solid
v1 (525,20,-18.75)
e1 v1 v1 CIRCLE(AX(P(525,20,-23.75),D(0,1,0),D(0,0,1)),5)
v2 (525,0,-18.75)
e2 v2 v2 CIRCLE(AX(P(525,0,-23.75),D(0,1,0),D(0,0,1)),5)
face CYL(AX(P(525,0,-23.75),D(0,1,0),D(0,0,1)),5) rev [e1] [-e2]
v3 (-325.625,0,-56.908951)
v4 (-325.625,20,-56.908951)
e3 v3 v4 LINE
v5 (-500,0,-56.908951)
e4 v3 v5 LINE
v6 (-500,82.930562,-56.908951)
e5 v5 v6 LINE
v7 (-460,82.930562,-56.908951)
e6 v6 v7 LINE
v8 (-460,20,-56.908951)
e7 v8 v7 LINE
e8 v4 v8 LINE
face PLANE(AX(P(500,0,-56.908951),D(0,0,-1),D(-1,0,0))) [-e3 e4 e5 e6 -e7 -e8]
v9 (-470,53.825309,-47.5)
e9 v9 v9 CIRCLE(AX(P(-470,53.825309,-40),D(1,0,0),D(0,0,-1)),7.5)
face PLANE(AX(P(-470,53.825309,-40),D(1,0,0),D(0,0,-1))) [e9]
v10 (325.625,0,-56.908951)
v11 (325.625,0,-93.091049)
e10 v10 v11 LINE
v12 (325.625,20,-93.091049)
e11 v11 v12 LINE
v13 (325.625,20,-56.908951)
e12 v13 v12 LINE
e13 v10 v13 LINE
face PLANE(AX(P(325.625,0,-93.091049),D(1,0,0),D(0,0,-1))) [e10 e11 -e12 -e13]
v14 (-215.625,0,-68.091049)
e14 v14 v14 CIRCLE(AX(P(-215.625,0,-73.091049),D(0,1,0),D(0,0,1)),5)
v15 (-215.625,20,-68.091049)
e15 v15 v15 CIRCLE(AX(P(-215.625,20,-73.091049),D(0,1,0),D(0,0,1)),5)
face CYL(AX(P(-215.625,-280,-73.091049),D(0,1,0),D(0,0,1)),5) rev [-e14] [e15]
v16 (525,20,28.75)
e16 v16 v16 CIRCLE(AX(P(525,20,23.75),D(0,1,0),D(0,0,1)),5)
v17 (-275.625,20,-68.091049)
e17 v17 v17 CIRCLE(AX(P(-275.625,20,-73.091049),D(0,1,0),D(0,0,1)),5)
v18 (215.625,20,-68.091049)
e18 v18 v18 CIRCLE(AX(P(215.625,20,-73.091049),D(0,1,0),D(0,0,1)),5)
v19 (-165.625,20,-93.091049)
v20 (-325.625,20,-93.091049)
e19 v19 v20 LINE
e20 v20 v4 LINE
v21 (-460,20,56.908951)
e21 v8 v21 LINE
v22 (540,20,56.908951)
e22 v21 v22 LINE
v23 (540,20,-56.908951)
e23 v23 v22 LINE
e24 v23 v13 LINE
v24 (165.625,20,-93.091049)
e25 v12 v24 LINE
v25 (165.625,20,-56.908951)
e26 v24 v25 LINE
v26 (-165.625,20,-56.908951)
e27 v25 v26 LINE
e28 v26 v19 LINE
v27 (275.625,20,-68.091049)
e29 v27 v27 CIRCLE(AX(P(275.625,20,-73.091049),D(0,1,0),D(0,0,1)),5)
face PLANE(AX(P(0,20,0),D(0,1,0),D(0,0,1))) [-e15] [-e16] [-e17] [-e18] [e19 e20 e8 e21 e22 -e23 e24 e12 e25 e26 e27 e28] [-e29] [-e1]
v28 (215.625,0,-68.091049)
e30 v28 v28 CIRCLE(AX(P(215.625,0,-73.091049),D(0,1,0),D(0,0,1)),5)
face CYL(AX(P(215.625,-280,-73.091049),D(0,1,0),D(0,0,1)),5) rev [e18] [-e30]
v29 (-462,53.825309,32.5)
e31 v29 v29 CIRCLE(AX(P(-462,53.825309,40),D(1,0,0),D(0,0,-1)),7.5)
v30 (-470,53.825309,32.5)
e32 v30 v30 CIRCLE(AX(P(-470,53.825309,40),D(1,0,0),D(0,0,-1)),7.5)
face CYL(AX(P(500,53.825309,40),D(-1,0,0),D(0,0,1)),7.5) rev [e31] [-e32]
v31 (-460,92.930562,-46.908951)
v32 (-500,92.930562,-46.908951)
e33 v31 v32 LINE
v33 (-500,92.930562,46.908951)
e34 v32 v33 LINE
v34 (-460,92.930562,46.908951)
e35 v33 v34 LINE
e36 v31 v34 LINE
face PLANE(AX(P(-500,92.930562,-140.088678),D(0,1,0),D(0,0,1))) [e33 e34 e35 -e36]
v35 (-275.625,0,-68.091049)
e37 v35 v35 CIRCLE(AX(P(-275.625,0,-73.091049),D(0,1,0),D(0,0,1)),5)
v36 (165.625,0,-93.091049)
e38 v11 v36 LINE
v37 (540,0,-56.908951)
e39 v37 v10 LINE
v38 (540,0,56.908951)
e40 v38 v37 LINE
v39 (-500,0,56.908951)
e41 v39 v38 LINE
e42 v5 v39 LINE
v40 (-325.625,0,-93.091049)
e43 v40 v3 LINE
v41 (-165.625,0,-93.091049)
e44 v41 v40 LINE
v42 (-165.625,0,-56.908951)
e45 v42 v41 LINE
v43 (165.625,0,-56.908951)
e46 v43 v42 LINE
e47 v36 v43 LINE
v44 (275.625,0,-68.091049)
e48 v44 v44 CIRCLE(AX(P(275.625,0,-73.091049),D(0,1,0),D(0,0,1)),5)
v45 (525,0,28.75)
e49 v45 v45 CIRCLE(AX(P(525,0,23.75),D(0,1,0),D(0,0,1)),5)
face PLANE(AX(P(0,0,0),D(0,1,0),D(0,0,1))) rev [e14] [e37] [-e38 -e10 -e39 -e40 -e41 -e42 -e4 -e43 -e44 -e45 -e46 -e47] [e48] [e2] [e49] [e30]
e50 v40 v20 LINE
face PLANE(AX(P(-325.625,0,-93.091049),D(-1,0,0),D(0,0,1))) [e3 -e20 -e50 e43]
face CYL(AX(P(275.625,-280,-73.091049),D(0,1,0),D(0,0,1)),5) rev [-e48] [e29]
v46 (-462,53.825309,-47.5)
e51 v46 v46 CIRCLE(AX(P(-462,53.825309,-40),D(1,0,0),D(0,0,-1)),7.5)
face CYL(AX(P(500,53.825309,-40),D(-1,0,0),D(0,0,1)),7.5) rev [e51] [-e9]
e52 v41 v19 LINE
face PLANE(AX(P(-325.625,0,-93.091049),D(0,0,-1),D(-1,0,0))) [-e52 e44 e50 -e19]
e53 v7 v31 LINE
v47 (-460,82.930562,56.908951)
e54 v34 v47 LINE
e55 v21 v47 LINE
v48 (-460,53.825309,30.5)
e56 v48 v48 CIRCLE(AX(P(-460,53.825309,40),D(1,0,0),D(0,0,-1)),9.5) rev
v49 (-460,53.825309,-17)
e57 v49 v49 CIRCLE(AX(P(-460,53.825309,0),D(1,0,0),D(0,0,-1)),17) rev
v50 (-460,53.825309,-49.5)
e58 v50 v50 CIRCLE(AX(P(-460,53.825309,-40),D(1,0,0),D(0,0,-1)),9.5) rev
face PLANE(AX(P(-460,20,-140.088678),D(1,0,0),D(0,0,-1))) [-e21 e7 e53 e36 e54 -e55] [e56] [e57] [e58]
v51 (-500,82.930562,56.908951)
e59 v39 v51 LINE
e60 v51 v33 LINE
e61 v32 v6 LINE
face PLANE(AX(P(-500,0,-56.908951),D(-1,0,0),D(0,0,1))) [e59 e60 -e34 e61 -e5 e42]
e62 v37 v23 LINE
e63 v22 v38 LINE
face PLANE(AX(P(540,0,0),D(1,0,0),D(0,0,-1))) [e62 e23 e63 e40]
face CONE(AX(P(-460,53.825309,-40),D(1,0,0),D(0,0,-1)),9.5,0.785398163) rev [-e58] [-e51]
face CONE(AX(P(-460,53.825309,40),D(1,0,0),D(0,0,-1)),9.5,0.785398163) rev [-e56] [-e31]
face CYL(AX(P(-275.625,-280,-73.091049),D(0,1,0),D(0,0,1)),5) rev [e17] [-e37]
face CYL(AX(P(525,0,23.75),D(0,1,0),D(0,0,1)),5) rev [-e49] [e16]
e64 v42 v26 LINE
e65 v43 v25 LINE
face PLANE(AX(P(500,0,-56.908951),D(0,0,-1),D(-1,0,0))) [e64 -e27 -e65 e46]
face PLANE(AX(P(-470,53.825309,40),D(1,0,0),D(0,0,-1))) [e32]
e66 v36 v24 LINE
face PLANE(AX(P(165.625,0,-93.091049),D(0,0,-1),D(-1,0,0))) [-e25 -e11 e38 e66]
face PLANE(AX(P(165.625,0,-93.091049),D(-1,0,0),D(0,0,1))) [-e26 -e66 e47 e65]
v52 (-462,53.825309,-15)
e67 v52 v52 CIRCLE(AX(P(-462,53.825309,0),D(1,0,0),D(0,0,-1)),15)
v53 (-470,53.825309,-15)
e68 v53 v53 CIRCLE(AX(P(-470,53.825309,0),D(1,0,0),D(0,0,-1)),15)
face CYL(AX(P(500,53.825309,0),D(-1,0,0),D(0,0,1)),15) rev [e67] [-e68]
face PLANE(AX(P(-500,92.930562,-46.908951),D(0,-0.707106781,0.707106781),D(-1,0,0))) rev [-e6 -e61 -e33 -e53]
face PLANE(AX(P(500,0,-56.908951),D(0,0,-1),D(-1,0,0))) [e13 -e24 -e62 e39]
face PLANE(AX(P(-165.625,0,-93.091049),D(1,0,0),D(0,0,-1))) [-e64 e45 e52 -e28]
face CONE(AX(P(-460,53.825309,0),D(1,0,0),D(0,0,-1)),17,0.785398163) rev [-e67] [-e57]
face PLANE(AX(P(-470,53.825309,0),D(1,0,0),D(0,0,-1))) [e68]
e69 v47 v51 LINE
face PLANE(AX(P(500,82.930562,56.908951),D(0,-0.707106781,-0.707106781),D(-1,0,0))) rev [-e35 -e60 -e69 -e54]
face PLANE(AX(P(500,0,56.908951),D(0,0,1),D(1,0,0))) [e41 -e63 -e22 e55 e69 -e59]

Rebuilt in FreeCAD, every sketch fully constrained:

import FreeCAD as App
import Part
import Sketcher
from FreeCAD import Vector
Q = App.Units.Quantity


def edges_at(feature, points):
    """Names of the edges that pass closest to the given points."""
    edges = feature.Shape.Edges
    near = lambda p: min(range(len(edges)), key=lambda i: edges[i].distToShape(Part.Vertex(*p))[0])
    return sorted({f"Edge{near(p) + 1}" for p in points})

doc = App.newDocument("Part")
body = doc.addObject("PartDesign::Body", "Body")

sketch1 = body.newObject("Sketcher::SketchObject", "Sketch")
sketch1.AttachmentSupport = (doc.getObject("XZ_Plane"), [""])
sketch1.MapMode = "FlatFace"
sketch1.addGeometry(Part.LineSegment(Vector(-106, -28, 0), Vector(-106, 28, 0)), False)
sketch1.addGeometry(Part.LineSegment(Vector(-106, 28, 0), Vector(106, 28, 0)), False)
sketch1.addGeometry(Part.LineSegment(Vector(106, 28, 0), Vector(106, -28, 0)), False)
sketch1.addGeometry(Part.LineSegment(Vector(106, -28, 0), Vector(-106, -28, 0)), False)
sketch1.addConstraint(Sketcher.Constraint("Coincident", 0, 2, 1, 1))
sketch1.addConstraint(Sketcher.Constraint("Coincident", 1, 2, 2, 1))
sketch1.addConstraint(Sketcher.Constraint("Coincident", 2, 2, 3, 1))
sketch1.addConstraint(Sketcher.Constraint("Coincident", 3, 2, 0, 1))
sketch1.addConstraint(Sketcher.Constraint("Vertical", 0))
sketch1.addConstraint(Sketcher.Constraint("Horizontal", 1))
sketch1.addConstraint(Sketcher.Constraint("Vertical", 2))
sketch1.addConstraint(Sketcher.Constraint("Horizontal", 3))
sketch1.addConstraint(Sketcher.Constraint("Symmetric", 0, 2, 2, 2, -1, 1))
sketch1.addConstraint(Sketcher.Constraint("DistanceX", 1, 1, 1, 2, Q("211.21615 mm")))
sketch1.addConstraint(Sketcher.Constraint("DistanceY", 0, 1, 0, 2, Q("56.943071 mm")))
pad1 = body.newObject("PartDesign::Pad", "Pad")
pad1.Profile = sketch1
pad1.Length = 20
pad1.Reversed = True

sketch2 = body.newObject("Sketcher::SketchObject", "Sketch001")
sketch2.AttachmentSupport = (doc.getObject("XZ_Plane"), [""])
sketch2.MapMode = "FlatFace"
sketch2.AttachmentOffset = App.Placement(Vector(0, 0, -20), App.Rotation())
sketch2.addGeometry(Part.LineSegment(Vector(-500, -57, 0), Vector(-500, 57, 0)), False)
sketch2.addGeometry(Part.LineSegment(Vector(-500, 57, 0), Vector(500, 57, 0)), False)
sketch2.addGeometry(Part.LineSegment(Vector(500, 57, 0), Vector(500, -57, 0)), False)
sketch2.addGeometry(Part.LineSegment(Vector(500, -57, 0), Vector(-500, -57, 0)), False)
sketch2.addConstraint(Sketcher.Constraint("Coincident", 0, 2, 1, 1))
sketch2.addConstraint(Sketcher.Constraint("Coincident", 1, 2, 2, 1))
sketch2.addConstraint(Sketcher.Constraint("Coincident", 2, 2, 3, 1))
sketch2.addConstraint(Sketcher.Constraint("Coincident", 3, 2, 0, 1))
sketch2.addConstraint(Sketcher.Constraint("Vertical", 0))
sketch2.addConstraint(Sketcher.Constraint("Horizontal", 1))
sketch2.addConstraint(Sketcher.Constraint("Vertical", 2))
sketch2.addConstraint(Sketcher.Constraint("Horizontal", 3))
sketch2.addConstraint(Sketcher.Constraint("Symmetric", 0, 2, 2, 2, -1, 1))
sketch2.addConstraint(Sketcher.Constraint("DistanceX", 1, 1, 1, 2, Q("1000 mm")))
sketch2.addConstraint(Sketcher.Constraint("DistanceY", 0, 1, 0, 2, Q("113.817903 mm")))
pad2 = body.newObject("PartDesign::Pad", "Pad001")
pad2.Profile = sketch2
pad2.Length = 20

sketch3 = body.newObject("Sketcher::SketchObject", "Sketch002")
sketch3.AttachmentSupport = (doc.getObject("XZ_Plane"), [""])
sketch3.MapMode = "FlatFace"
sketch3.AttachmentOffset = App.Placement(Vector(0, 0, -20), App.Rotation())
sketch3.addGeometry(Part.LineSegment(Vector(-326, -93, 0), Vector(-326, -57, 0)), False)
sketch3.addGeometry(Part.LineSegment(Vector(-326, -57, 0), Vector(-166, -57, 0)), False)
sketch3.addGeometry(Part.LineSegment(Vector(-166, -57, 0), Vector(-166, -93, 0)), False)
sketch3.addGeometry(Part.LineSegment(Vector(-166, -93, 0), Vector(-326, -93, 0)), False)
sketch3.addConstraint(Sketcher.Constraint("Coincident", 0, 2, 1, 1))
sketch3.addConstraint(Sketcher.Constraint("Coincident", 1, 2, 2, 1))
sketch3.addConstraint(Sketcher.Constraint("Coincident", 2, 2, 3, 1))
sketch3.addConstraint(Sketcher.Constraint("Coincident", 3, 2, 0, 1))
sketch3.addConstraint(Sketcher.Constraint("Vertical", 0))
sketch3.addConstraint(Sketcher.Constraint("Horizontal", 1))
sketch3.addConstraint(Sketcher.Constraint("Vertical", 2))
sketch3.addConstraint(Sketcher.Constraint("Horizontal", 3))
sketch3.addConstraint(Sketcher.Constraint("DistanceX", 1, 1, 1, 2, Q("160 mm")))
sketch3.addConstraint(Sketcher.Constraint("DistanceX", 0, 2, -1, 1, Q("325.625 mm")))
sketch3.addConstraint(Sketcher.Constraint("DistanceY", 0, 1, 0, 2, Q("36.182097 mm")))
sketch3.addConstraint(Sketcher.Constraint("DistanceY", 0, 2, -1, 1, Q("56.908951 mm")))
pad3 = body.newObject("PartDesign::Pad", "Pad002")
pad3.Profile = sketch3
pad3.Length = 20

sketch4 = body.newObject("Sketcher::SketchObject", "Sketch003")
sketch4.AttachmentSupport = (doc.getObject("XZ_Plane"), [""])
sketch4.MapMode = "FlatFace"
sketch4.AttachmentOffset = App.Placement(Vector(0, 0, -20), App.Rotation())
sketch4.addGeometry(Part.LineSegment(Vector(166, -93, 0), Vector(166, -57, 0)), False)
sketch4.addGeometry(Part.LineSegment(Vector(166, -57, 0), Vector(326, -57, 0)), False)
sketch4.addGeometry(Part.LineSegment(Vector(326, -57, 0), Vector(326, -93, 0)), False)
sketch4.addGeometry(Part.LineSegment(Vector(326, -93, 0), Vector(166, -93, 0)), False)
sketch4.addConstraint(Sketcher.Constraint("Coincident", 0, 2, 1, 1))
sketch4.addConstraint(Sketcher.Constraint("Coincident", 1, 2, 2, 1))
sketch4.addConstraint(Sketcher.Constraint("Coincident", 2, 2, 3, 1))
sketch4.addConstraint(Sketcher.Constraint("Coincident", 3, 2, 0, 1))
sketch4.addConstraint(Sketcher.Constraint("Vertical", 0))
sketch4.addConstraint(Sketcher.Constraint("Horizontal", 1))
sketch4.addConstraint(Sketcher.Constraint("Vertical", 2))
sketch4.addConstraint(Sketcher.Constraint("Horizontal", 3))
sketch4.addConstraint(Sketcher.Constraint("DistanceX", 1, 1, 1, 2, Q("160 mm")))
sketch4.addConstraint(Sketcher.Constraint("DistanceX", -1, 1, 0, 2, Q("165.625 mm")))
sketch4.addConstraint(Sketcher.Constraint("DistanceY", 0, 1, 0, 2, Q("36.182097 mm")))
sketch4.addConstraint(Sketcher.Constraint("DistanceY", 0, 2, -1, 1, Q("56.908951 mm")))
pad4 = body.newObject("PartDesign::Pad", "Pad003")
pad4.Profile = sketch4
pad4.Length = 20

sketch5 = body.newObject("Sketcher::SketchObject", "Sketch004")
sketch5.AttachmentSupport = (doc.getObject("XY_Plane"), [""])
sketch5.MapMode = "FlatFace"
sketch5.AttachmentOffset = App.Placement(Vector(0, 0, 56.908951), App.Rotation())
sketch5.addGeometry(Part.LineSegment(Vector(-500, 93, 0), Vector(-500, 20, 0)), False)
sketch5.addGeometry(Part.LineSegment(Vector(-500, 20, 0), Vector(-460, 20, 0)), False)
sketch5.addGeometry(Part.LineSegment(Vector(-460, 20, 0), Vector(-460, 93, 0)), False)
sketch5.addGeometry(Part.LineSegment(Vector(-460, 93, 0), Vector(-500, 93, 0)), False)
sketch5.addConstraint(Sketcher.Constraint("Coincident", 0, 2, 1, 1))
sketch5.addConstraint(Sketcher.Constraint("Coincident", 1, 2, 2, 1))
sketch5.addConstraint(Sketcher.Constraint("Coincident", 2, 2, 3, 1))
sketch5.addConstraint(Sketcher.Constraint("Coincident", 3, 2, 0, 1))
sketch5.addConstraint(Sketcher.Constraint("Vertical", 0))
sketch5.addConstraint(Sketcher.Constraint("Horizontal", 1))
sketch5.addConstraint(Sketcher.Constraint("Vertical", 2))
sketch5.addConstraint(Sketcher.Constraint("Horizontal", 3))
sketch5.addConstraint(Sketcher.Constraint("DistanceX", 1, 1, 1, 2, Q("40 mm")))
sketch5.addConstraint(Sketcher.Constraint("DistanceX", 0, 2, -1, 1, Q("500 mm")))
sketch5.addConstraint(Sketcher.Constraint("DistanceY", -1, 1, 0, 2, Q("20 mm")))
sketch5.addConstraint(Sketcher.Constraint("DistanceY", 0, 2, 0, 1, Q("72.930562 mm")))
pad5 = body.newObject("PartDesign::Pad", "Pad004")
pad5.Profile = sketch5
pad5.Length = 113.817903
pad5.Reversed = True

sketch6 = body.newObject("Sketcher::SketchObject", "Sketch005")
sketch6.AttachmentSupport = (doc.getObject("YZ_Plane"), [""])
sketch6.MapMode = "FlatFace"
sketch6.AttachmentOffset = App.Placement(Vector(0, 0, -460), App.Rotation())
sketch6.addGeometry(Part.Circle(Vector(54, 0, 0), Vector(0, 0, 1), 15), False)
sketch6.addGeometry(Part.Circle(Vector(54, -40, 0), Vector(0, 0, 1), 8), False)
sketch6.addGeometry(Part.Circle(Vector(54, 40, 0), Vector(0, 0, 1), 8), False)
sketch6.addConstraint(Sketcher.Constraint("Equal", 1, 2))
sketch6.addConstraint(Sketcher.Constraint("Symmetric", 1, 3, 2, 3, -1))
sketch6.addConstraint(Sketcher.Constraint("PointOnObject", 0, 3, -1))
sketch6.addConstraint(Sketcher.Constraint("Vertical", 0, 3, 1, 3))
sketch6.addConstraint(Sketcher.Constraint("Diameter", 0, Q("30 mm")))
sketch6.addConstraint(Sketcher.Constraint("Diameter", 1, Q("15 mm")))
sketch6.addConstraint(Sketcher.Constraint("DistanceY", 1, 3, -1, 1, Q("40 mm")))
sketch6.addConstraint(Sketcher.Constraint("DistanceX", -1, 1, 0, 3, Q("53.825309 mm")))
pocket1 = body.newObject("PartDesign::Pocket", "Pocket")
pocket1.Profile = sketch6
pocket1.Type = "TwoLengths"
pocket1.Length = 969.969573
pocket1.Length2 = 10
pocket1.Reversed = True

sketch7 = body.newObject("Sketcher::SketchObject", "Sketch006")
sketch7.AttachmentSupport = (doc.getObject("YZ_Plane"), [""])
sketch7.MapMode = "FlatFace"
sketch7.AttachmentOffset = App.Placement(Vector(0, 0, 500), App.Rotation())
sketch7.addGeometry(Part.LineSegment(Vector(20, 57, 0), Vector(0, 57, 0)), False)
sketch7.addGeometry(Part.LineSegment(Vector(0, 57, 0), Vector(0, -57, 0)), False)
sketch7.addGeometry(Part.LineSegment(Vector(0, -57, 0), Vector(20, -57, 0)), False)
sketch7.addGeometry(Part.LineSegment(Vector(20, -57, 0), Vector(20, 57, 0)), False)
sketch7.addConstraint(Sketcher.Constraint("Coincident", 0, 2, 1, 1))
sketch7.addConstraint(Sketcher.Constraint("Coincident", 1, 2, 2, 1))
sketch7.addConstraint(Sketcher.Constraint("Coincident", 2, 2, 3, 1))
sketch7.addConstraint(Sketcher.Constraint("Coincident", 3, 2, 0, 1))
sketch7.addConstraint(Sketcher.Constraint("Horizontal", 0))
sketch7.addConstraint(Sketcher.Constraint("Vertical", 1))
sketch7.addConstraint(Sketcher.Constraint("Horizontal", 2))
sketch7.addConstraint(Sketcher.Constraint("Vertical", 3))
sketch7.addConstraint(Sketcher.Constraint("Symmetric", 0, 2, 1, 2, -1, 1))
sketch7.addConstraint(Sketcher.Constraint("DistanceX", 0, 2, 0, 1, Q("20 mm")))
sketch7.addConstraint(Sketcher.Constraint("DistanceY", 1, 2, 1, 1, Q("113.817903 mm")))
pad6 = body.newObject("PartDesign::Pad", "Pad005")
pad6.Profile = sketch7
pad6.Length = 40

sketch8 = body.newObject("Sketcher::SketchObject", "Sketch007")
sketch8.AttachmentSupport = (doc.getObject("XZ_Plane"), [""])
sketch8.MapMode = "FlatFace"
sketch8.AttachmentOffset = App.Placement(Vector(0, 0, -20), App.Rotation())
sketch8.addGeometry(Part.Circle(Vector(525, -24, 0), Vector(0, 0, 1), 5), False)
sketch8.addGeometry(Part.Circle(Vector(525, 24, 0), Vector(0, 0, 1), 5), False)
sketch8.addConstraint(Sketcher.Constraint("Equal", 0, 1))
sketch8.addConstraint(Sketcher.Constraint("Symmetric", 0, 3, 1, 3, -1))
sketch8.addConstraint(Sketcher.Constraint("Diameter", 0, Q("10 mm")))
sketch8.addConstraint(Sketcher.Constraint("DistanceX", -1, 1, 0, 3, Q("525 mm")))
sketch8.addConstraint(Sketcher.Constraint("DistanceY", 0, 3, 1, 3, Q("47.5 mm")))
pocket2 = body.newObject("PartDesign::Pocket", "Pocket001")
pocket2.Profile = sketch8
pocket2.Type = "ThroughAll"
pocket2.Midplane = True
doc.recompute()

chamfer = body.newObject("PartDesign::Chamfer", "Chamfer")
chamfer.Base = (pocket2, edges_at(pocket2, [(-480, 92.931, 56.909), (-480, 92.931, -56.909)]))
chamfer.Size = 10
doc.recompute()

chamfer2 = body.newObject("PartDesign::Chamfer", "Chamfer001")
chamfer2.Base = (chamfer, edges_at(chamfer, [(-460, 53.825, 47.5), (-460, 53.825, -32.5), (-460, 53.825, 15)]))
chamfer2.Size = 2

sketch9 = body.newObject("Sketcher::SketchObject", "Sketch008")
sketch9.AttachmentSupport = (doc.getObject("XZ_Plane"), [""])
sketch9.MapMode = "FlatFace"
sketch9.AttachmentOffset = App.Placement(Vector(0, 0, -20), App.Rotation())
sketch9.addGeometry(Part.Circle(Vector(-276, -73, 0), Vector(0, 0, 1), 5), False)
sketch9.addGeometry(Part.Circle(Vector(-216, -73, 0), Vector(0, 0, 1), 5), False)
sketch9.addGeometry(Part.Circle(Vector(216, -73, 0), Vector(0, 0, 1), 5), False)
sketch9.addGeometry(Part.Circle(Vector(276, -73, 0), Vector(0, 0, 1), 5), False)
sketch9.addConstraint(Sketcher.Constraint("Equal", 0, 1))
sketch9.addConstraint(Sketcher.Constraint("Equal", 1, 2))
sketch9.addConstraint(Sketcher.Constraint("Equal", 2, 3))
sketch9.addConstraint(Sketcher.Constraint("Symmetric", 1, 3, 2, 3, -2))
sketch9.addConstraint(Sketcher.Constraint("Symmetric", 0, 3, 3, 3, -2))
sketch9.addConstraint(Sketcher.Constraint("Horizontal", 0, 3, 1, 3))
sketch9.addConstraint(Sketcher.Constraint("Diameter", 0, Q("10 mm")))
sketch9.addConstraint(Sketcher.Constraint("DistanceX", 0, 3, 1, 3, Q("60 mm")))
sketch9.addConstraint(Sketcher.Constraint("DistanceX", 1, 3, 2, 3, Q("431.25 mm")))
sketch9.addConstraint(Sketcher.Constraint("DistanceY", 0, 3, -1, 1, Q("73.091049 mm")))
pocket3 = body.newObject("PartDesign::Pocket", "Pocket002")
pocket3.Profile = sketch9
pocket3.Length = 300
pocket3.Reversed = True

doc.recompute()
